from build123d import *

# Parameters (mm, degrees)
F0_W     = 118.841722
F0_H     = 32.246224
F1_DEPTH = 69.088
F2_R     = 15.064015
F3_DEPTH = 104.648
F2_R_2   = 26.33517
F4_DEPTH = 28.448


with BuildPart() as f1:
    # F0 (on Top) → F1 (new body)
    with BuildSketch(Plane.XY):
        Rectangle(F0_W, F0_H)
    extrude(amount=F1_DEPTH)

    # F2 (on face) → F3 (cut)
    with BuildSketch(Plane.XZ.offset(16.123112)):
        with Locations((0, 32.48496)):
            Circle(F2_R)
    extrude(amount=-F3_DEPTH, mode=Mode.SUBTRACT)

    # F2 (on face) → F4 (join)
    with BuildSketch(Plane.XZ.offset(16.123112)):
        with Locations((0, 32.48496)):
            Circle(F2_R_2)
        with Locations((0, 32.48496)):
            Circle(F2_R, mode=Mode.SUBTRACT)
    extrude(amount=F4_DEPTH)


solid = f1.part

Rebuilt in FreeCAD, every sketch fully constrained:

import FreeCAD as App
import Part
import Sketcher
Q = App.Units.Quantity

doc = App.newDocument("Part")
body = doc.addObject("PartDesign::Body", "Body")

# Sketch on XY plane
sketch1 = body.newObject("Sketcher::SketchObject", "Sketch")
sketch1.AttachmentSupport = (doc.getObject("XY_Plane"), [""])
sketch1.MapMode = "FlatFace"
sketch1.addGeometry([
    Part.LineSegment(App.Vector(-59, 16, 0), App.Vector(-59, -16, 0)),
    Part.LineSegment(App.Vector(-59, -16, 0), App.Vector(59, -16, 0)),
    Part.LineSegment(App.Vector(59, -16, 0), App.Vector(59, 16, 0)),
    Part.LineSegment(App.Vector(59, 16, 0), App.Vector(-59, 16, 0)),
], False)
sketch1.addConstraint([
    Sketcher.Constraint("Coincident", 0, 2, 1, 1),
    Sketcher.Constraint("Coincident", 1, 2, 2, 1),
    Sketcher.Constraint("Coincident", 2, 2, 3, 1),
    Sketcher.Constraint("Coincident", 3, 2, 0, 1),
    Sketcher.Constraint("Vertical", 0),
    Sketcher.Constraint("Horizontal", 1),
    Sketcher.Constraint("Vertical", 2),
    Sketcher.Constraint("Horizontal", 3),
    Sketcher.Constraint("Symmetric", 0, 2, 2, 2, -1, 1),
    Sketcher.Constraint("DistanceX", 1, 1, 1, 2, 118.841722),
    Sketcher.Constraint("DistanceY", 0, 2, 0, 1, 32.246224),
])
pad1 = body.newObject("PartDesign::Pad", "Pad")
pad1.Profile = sketch1
pad1.Length = Q("2.72 in")

# Sketch on XZ plane
sketch2 = body.newObject("Sketcher::SketchObject", "Sketch001")
sketch2.AttachmentSupport = (doc.getObject("XZ_Plane"), [""])
sketch2.MapMode = "FlatFace"
sketch2.AttachmentOffset = App.Placement(App.Vector(0, 0, 16.123112), App.Rotation())
sketch2.addGeometry(Part.Circle(App.Vector(0, 32, 0), App.Vector(0, 0, 1), 15), False)
sketch2.addConstraint([
    Sketcher.Constraint("PointOnObject", 0, 3, -2),
    Sketcher.Constraint("Diameter", 0, 30.12803),
    Sketcher.Constraint("DistanceY", -1, 1, 0, 3, 32.48496),
])
pocket1 = body.newObject("PartDesign::Pocket", "Pocket")
pocket1.Profile = sketch2
pocket1.Length = Q("4.12 in")

# Sketch on XZ plane
sketch3 = body.newObject("Sketcher::SketchObject", "Sketch002")
sketch3.AttachmentSupport = (doc.getObject("XZ_Plane"), [""])
sketch3.MapMode = "FlatFace"
sketch3.AttachmentOffset = App.Placement(App.Vector(0, 0, 16.123112), App.Rotation())
sketch3.addGeometry([
    Part.Circle(App.Vector(0, 32, 0), App.Vector(0, 0, 1), 26),
    Part.Circle(App.Vector(0, 32, 0), App.Vector(0, 0, 1), 15),
], False)
sketch3.addConstraint([
    Sketcher.Constraint("Coincident", 1, 3, 0, 3),
    Sketcher.Constraint("PointOnObject", 0, 3, -2),
    Sketcher.Constraint("Diameter", 0, 52.67034),
    Sketcher.Constraint("Diameter", 1, 30.12803),
    Sketcher.Constraint("DistanceY", -1, 1, 0, 3, 32.48496),
])
pad2 = body.newObject("PartDesign::Pad", "Pad001")
pad2.Profile = sketch3
pad2.Length = Q("1.12 in")

doc.recompute()
